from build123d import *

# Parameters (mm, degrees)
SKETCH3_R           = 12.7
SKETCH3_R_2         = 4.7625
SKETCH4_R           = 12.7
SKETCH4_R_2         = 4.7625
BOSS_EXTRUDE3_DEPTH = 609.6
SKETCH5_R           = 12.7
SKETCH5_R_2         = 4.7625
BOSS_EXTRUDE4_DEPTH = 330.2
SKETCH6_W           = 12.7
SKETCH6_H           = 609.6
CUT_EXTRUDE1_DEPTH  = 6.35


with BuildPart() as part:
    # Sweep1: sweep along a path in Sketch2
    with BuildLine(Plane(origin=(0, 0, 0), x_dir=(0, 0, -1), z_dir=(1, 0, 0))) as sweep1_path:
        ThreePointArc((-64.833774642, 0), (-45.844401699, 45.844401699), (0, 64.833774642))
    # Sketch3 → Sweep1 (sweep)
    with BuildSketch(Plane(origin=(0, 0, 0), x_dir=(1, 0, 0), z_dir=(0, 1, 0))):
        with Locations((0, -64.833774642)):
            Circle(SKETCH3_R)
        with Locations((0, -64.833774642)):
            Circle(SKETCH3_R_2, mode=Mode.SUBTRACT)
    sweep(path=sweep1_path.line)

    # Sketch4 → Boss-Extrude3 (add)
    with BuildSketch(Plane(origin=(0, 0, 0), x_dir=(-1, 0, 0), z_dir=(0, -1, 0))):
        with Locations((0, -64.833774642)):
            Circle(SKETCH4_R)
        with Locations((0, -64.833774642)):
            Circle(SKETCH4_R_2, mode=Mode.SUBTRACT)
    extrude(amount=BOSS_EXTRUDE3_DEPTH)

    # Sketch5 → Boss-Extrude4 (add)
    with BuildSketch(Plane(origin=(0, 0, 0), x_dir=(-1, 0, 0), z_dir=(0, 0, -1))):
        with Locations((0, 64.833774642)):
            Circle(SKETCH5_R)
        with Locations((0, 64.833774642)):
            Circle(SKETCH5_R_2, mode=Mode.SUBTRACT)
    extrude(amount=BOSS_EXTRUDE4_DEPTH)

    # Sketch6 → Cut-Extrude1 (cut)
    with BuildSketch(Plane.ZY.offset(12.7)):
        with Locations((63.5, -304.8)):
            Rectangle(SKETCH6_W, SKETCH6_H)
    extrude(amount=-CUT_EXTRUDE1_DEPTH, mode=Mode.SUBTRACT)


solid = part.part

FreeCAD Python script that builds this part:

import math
import FreeCAD as App
import Part
import Sketcher
Q = App.Units.Quantity

doc = App.newDocument("Part")
params = doc.addObject("Spreadsheet::Sheet", "Params")
for row, (alias, value) in enumerate([
    ("sketch1_diameter", "1 in"),
    ("sketch1_diameter2", "0.375 in"),
    ("sketch3_diameter", "1 in"),
    ("sketch3_diameter2", "0.375 in"),
    ("pad1_length", "24 in"),
    ("sketch4_diameter", "1 in"),
    ("sketch4_diameter2", "0.375 in"),
    ("pad2_length", "13 in"),
    ("sketch5_width", "24 in"),
    ("sketch5_height", "0.5 in"),
    ("pocket1_length", "0.25 in"),
], start=1):
    params.set(f"A{row}", alias)
    params.set(f"B{row}", "=" + value)
    params.setAlias(f"B{row}", alias)

body = doc.addObject("PartDesign::Body", "Body")

# Sketch on XZ plane
sketch1 = body.newObject("Sketcher::SketchObject", "Sketch")
sketch1.AttachmentSupport = (doc.getObject("XZ_Plane"), [""])
sketch1.MapMode = "FlatFace"
sketch1.addGeometry([
    Part.Circle(App.Vector(0, 64.833775, 0), App.Vector(0, 0, 1), 12.7),
    Part.Circle(App.Vector(0, 64.833775, 0), App.Vector(0, 0, 1), 4.7625),
], False)
sketch1.addConstraint([
    Sketcher.Constraint("Coincident", 1, 3, 0, 3),
    Sketcher.Constraint("PointOnObject", 0, 3, -2),
    Sketcher.Constraint("Diameter", 0, Q("1 in")),
    Sketcher.Constraint("Diameter", 1, Q("0.375 in")),
    Sketcher.Constraint("DistanceY", -1, 1, 0, 3, Q("64.833775 mm")),
])
sketch1.setExpression("Constraints[2]", "Params.sketch1_diameter")
sketch1.setExpression("Constraints[3]", "Params.sketch1_diameter2")

# Sketch on YZ plane
sketch2 = body.newObject("Sketcher::SketchObject", "Sketch001")
sketch2.AttachmentSupport = (doc.getObject("YZ_Plane"), [""])
sketch2.MapMode = "FlatFace"
sketch2.addGeometry(Part.ArcOfCircle(Part.Circle(App.Vector(0, 0, 0), App.Vector(0, 0, 1), 64.833775), math.radians(0), math.radians(90)), False)
sketch2.addConstraint([
    Sketcher.Constraint("Coincident", 0, 3, -1, 1),
    Sketcher.Constraint("PointOnObject", 0, 1, -1),
    Sketcher.Constraint("PointOnObject", 0, 2, -2),
    Sketcher.Constraint("Radius", 0, Q("64.833775 mm")),
])
doc.recompute()

additivepipe = body.newObject("PartDesign::AdditivePipe", "AdditivePipe")
additivepipe.Profile = sketch1
additivepipe.Spine = (sketch2, ["Edge1"])

# Sketch on XZ plane
sketch3 = body.newObject("Sketcher::SketchObject", "Sketch002")
sketch3.AttachmentSupport = (doc.getObject("XZ_Plane"), [""])
sketch3.MapMode = "FlatFace"
sketch3.addGeometry([
    Part.Circle(App.Vector(0, 64.833775, 0), App.Vector(0, 0, 1), 12.7),
    Part.Circle(App.Vector(0, 64.833775, 0), App.Vector(0, 0, 1), 4.7625),
], False)
sketch3.addConstraint([
    Sketcher.Constraint("Coincident", 1, 3, 0, 3),
    Sketcher.Constraint("PointOnObject", 0, 3, -2),
    Sketcher.Constraint("Diameter", 0, Q("1 in")),
    Sketcher.Constraint("Diameter", 1, Q("0.375 in")),
    Sketcher.Constraint("DistanceY", -1, 1, 0, 3, Q("64.833775 mm")),
])
sketch3.setExpression("Constraints[2]", "Params.sketch3_diameter")
sketch3.setExpression("Constraints[3]", "Params.sketch3_diameter2")
pad1 = body.newObject("PartDesign::Pad", "Pad")
pad1.Profile = sketch3
pad1.setExpression("Length", "Params.pad1_length")

# Sketch on XY plane
sketch4 = body.newObject("Sketcher::SketchObject", "Sketch003")
sketch4.AttachmentSupport = (doc.getObject("XY_Plane"), [""])
sketch4.MapMode = "FlatFace"
sketch4.addGeometry([
    Part.Circle(App.Vector(0, 64.833775, 0), App.Vector(0, 0, 1), 12.7),
    Part.Circle(App.Vector(0, 64.833775, 0), App.Vector(0, 0, 1), 4.7625),
], False)
sketch4.addConstraint([
    Sketcher.Constraint("Coincident", 1, 3, 0, 3),
    Sketcher.Constraint("PointOnObject", 0, 3, -2),
    Sketcher.Constraint("Diameter", 0, Q("1 in")),
    Sketcher.Constraint("Diameter", 1, Q("0.375 in")),
    Sketcher.Constraint("DistanceY", -1, 1, 0, 3, Q("64.833775 mm")),
])
sketch4.setExpression("Constraints[2]", "Params.sketch4_diameter")
sketch4.setExpression("Constraints[3]", "Params.sketch4_diameter2")
pad2 = body.newObject("PartDesign::Pad", "Pad001")
pad2.Profile = sketch4
pad2.setExpression("Length", "Params.pad2_length")
pad2.Reversed = True

# Sketch on YZ plane
sketch5 = body.newObject("Sketcher::SketchObject", "Sketch004")
sketch5.AttachmentSupport = (doc.getObject("YZ_Plane"), [""])
sketch5.MapMode = "FlatFace"
sketch5.AttachmentOffset = App.Placement(App.Vector(0, 0, -0.5 * 25.4), App.Rotation())
sketch5.addGeometry([
    Part.LineSegment(App.Vector(0, 57.15, 0), App.Vector(-609.6, 57.15, 0)),
    Part.LineSegment(App.Vector(-609.6, 57.15, 0), App.Vector(-609.6, 69.85, 0)),
    Part.LineSegment(App.Vector(-609.6, 69.85, 0), App.Vector(0, 69.85, 0)),
    Part.LineSegment(App.Vector(0, 69.85, 0), App.Vector(0, 57.15, 0)),
], False)
sketch5.addConstraint([
    Sketcher.Constraint("Coincident", 0, 2, 1, 1),
    Sketcher.Constraint("Coincident", 1, 2, 2, 1),
    Sketcher.Constraint("Coincident", 2, 2, 3, 1),
    Sketcher.Constraint("Coincident", 3, 2, 0, 1),
    Sketcher.Constraint("Horizontal", 0),
    Sketcher.Constraint("Vertical", 1),
    Sketcher.Constraint("Horizontal", 2),
    Sketcher.Constraint("Vertical", 3),
    Sketcher.Constraint("PointOnObject", 2, 2, -2),
    Sketcher.Constraint("DistanceX", 0, 2, 0, 1, Q("24 in")),
    Sketcher.Constraint("DistanceY", 1, 1, 1, 2, Q("0.5 in")),
    Sketcher.Constraint("DistanceY", -1, 1, 0, 2, Q("2.25 in")),
])
sketch5.setExpression("Constraints[9]", "Params.sketch5_width")
sketch5.setExpression("Constraints[10]", "Params.sketch5_height")
pocket1 = body.newObject("PartDesign::Pocket", "Pocket")
pocket1.Profile = sketch5
pocket1.setExpression("Length", "Params.pocket1_length")
pocket1.Reversed = True

doc.recompute()
